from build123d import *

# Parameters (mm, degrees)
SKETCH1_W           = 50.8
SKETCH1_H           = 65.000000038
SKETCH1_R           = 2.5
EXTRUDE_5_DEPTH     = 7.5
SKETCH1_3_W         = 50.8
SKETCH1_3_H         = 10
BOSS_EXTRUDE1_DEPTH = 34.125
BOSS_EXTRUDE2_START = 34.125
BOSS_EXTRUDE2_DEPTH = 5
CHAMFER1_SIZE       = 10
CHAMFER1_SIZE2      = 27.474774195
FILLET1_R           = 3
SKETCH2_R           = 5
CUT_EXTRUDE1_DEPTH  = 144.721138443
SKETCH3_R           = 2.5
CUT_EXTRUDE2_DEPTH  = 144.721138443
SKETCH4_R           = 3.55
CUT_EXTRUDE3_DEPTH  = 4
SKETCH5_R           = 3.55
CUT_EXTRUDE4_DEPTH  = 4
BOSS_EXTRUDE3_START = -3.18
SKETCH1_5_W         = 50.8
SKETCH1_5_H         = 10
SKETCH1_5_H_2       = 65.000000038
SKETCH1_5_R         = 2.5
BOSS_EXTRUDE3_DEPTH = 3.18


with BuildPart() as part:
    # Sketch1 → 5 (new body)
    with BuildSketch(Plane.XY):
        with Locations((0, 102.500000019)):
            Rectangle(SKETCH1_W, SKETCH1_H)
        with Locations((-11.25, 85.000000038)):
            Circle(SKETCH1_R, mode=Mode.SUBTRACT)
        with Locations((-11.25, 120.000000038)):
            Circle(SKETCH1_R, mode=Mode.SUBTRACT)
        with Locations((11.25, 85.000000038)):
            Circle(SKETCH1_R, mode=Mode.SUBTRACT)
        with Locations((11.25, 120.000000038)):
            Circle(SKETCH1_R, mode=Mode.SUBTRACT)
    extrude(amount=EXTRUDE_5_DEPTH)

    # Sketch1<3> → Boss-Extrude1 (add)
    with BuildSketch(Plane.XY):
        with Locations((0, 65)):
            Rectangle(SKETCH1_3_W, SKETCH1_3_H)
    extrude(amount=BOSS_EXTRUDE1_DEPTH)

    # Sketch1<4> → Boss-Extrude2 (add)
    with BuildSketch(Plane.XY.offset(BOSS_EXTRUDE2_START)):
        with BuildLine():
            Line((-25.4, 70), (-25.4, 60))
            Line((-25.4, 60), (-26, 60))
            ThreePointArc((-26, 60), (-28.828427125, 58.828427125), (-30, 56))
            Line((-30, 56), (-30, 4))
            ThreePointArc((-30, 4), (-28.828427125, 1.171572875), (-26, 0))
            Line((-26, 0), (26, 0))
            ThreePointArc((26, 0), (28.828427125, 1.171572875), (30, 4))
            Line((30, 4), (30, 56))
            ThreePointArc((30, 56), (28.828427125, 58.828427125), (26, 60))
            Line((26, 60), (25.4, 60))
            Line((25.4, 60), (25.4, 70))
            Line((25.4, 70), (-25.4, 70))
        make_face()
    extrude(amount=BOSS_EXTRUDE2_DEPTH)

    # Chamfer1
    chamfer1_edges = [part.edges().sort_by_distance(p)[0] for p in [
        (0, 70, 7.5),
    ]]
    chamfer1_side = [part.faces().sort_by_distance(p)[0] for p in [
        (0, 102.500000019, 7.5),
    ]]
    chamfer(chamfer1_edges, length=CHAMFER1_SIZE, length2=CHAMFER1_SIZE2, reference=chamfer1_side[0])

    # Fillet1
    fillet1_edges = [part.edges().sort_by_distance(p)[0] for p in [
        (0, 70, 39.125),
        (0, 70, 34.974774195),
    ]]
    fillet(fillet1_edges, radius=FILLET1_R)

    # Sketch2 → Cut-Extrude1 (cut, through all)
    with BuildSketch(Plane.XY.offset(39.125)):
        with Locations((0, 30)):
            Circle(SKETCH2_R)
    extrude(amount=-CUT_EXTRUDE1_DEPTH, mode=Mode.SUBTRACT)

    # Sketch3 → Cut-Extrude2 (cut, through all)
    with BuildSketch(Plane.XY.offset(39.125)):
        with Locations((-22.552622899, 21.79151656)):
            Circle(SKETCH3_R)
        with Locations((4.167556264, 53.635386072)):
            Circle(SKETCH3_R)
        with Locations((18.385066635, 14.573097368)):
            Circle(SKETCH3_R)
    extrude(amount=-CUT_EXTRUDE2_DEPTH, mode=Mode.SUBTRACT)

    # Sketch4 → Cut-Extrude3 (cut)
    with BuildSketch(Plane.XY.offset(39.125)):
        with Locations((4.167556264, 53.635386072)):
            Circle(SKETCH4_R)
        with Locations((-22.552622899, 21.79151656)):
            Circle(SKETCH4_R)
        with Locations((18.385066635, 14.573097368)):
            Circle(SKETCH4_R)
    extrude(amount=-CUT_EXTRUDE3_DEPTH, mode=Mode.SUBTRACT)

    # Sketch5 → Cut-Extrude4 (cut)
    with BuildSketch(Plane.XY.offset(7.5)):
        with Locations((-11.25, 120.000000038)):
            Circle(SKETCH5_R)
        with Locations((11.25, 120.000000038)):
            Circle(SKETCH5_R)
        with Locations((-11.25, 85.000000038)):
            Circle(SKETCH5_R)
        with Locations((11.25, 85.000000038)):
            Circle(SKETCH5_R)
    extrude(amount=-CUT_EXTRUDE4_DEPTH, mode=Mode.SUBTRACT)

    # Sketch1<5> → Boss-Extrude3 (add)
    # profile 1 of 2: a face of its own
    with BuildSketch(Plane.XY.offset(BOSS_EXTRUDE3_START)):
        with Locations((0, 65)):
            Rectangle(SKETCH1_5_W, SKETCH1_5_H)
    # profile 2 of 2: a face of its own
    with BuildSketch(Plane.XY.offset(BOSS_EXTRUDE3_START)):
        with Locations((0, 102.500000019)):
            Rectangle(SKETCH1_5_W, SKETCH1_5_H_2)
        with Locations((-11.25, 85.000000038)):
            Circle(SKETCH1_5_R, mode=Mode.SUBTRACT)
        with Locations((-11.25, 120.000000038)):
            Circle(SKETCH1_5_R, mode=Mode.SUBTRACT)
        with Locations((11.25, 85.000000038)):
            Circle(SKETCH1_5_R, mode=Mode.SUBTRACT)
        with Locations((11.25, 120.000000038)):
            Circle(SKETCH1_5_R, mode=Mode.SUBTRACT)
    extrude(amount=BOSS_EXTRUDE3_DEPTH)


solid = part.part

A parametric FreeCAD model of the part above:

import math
import FreeCAD as App
import Part
import Sketcher
Q = App.Units.Quantity


def edges_at(feature, points):
    """Names of the edges that pass closest to the given points."""
    edges = feature.Shape.Edges
    near = lambda p: min(range(len(edges)), key=lambda i: edges[i].distToShape(Part.Vertex(*p))[0])
    return sorted({f"Edge{near(p) + 1}" for p in points})


def add_polygon(sketch, points):
    """Adds a closed chain of lines whose ends are joined by coincident constraints."""
    first, n = sketch.GeometryCount, len(points)
    for a, b in zip(points, points[1:] + points[:1]):
        sketch.addGeometry(Part.LineSegment(App.Vector(*a, 0), App.Vector(*b, 0)), False)
    for i in range(n):
        sketch.addConstraint(Sketcher.Constraint("Coincident", first + i, 2, first + (i + 1) % n, 1))

doc = App.newDocument("Part")
params = doc.addObject("Spreadsheet::Sheet", "Params")
for row, (alias, value) in enumerate([
    ("sketch1_diameter", "5 mm"),
    ("sketch1_height", "65 mm"),
    ("sketch1_width", "50.8 mm"),
    ("pad1_length", "7.5 mm"),
    ("sketch2_height", "10 mm"),
    ("sketch2_width", "50.8 mm"),
    ("pad2_length", "34.125 mm"),
    ("sketch3_radius", "4 mm"),
    ("sketch3_width", "52 mm"),
    ("sketch3_height", "10 mm"),
    ("sketch3_width2", "0.6 mm"),
    ("pad3_length", "5 mm"),
    ("chamfer_size", "10 mm"),
    ("chamfer_size2", "27.474774 mm"),
    ("fillet_radius", "3 mm"),
    ("sketch4_diameter", "10 mm"),
    ("sketch5_diameter", "5 mm"),
    ("sketch6_diameter", "7.1 mm"),
    ("pocket3_length", "4 mm"),
    ("sketch7_diameter", "7.1 mm"),
    ("pocket4_length", "4 mm"),
    ("sketch8_diameter", "5 mm"),
    ("sketch8_height", "75 mm"),
    ("sketch8_width", "50.8 mm"),
    ("pad4_length", "3.18 mm"),
], start=1):
    params.set(f"A{row}", alias)
    params.set(f"B{row}", "=" + value)
    params.setAlias(f"B{row}", alias)

body = doc.addObject("PartDesign::Body", "Body")

# Sketch on XY plane
sketch1 = body.newObject("Sketcher::SketchObject", "Sketch")
sketch1.AttachmentSupport = (doc.getObject("XY_Plane"), [""])
sketch1.MapMode = "FlatFace"
add_polygon(sketch1, [(-25.4, 135), (-25.4, 70), (25.4, 70), (25.4, 135)])  # lines 0-3
sketch1.addGeometry(Part.Circle(App.Vector(-11.25, 85, 0), App.Vector(0, 0, 1), 2.5), False)  # 4
sketch1.addGeometry(Part.Circle(App.Vector(11.25, 85, 0), App.Vector(0, 0, 1), 2.5), False)  # 5
sketch1.addGeometry(Part.Circle(App.Vector(-11.25, 120, 0), App.Vector(0, 0, 1), 2.5), False)  # 6
sketch1.addGeometry(Part.Circle(App.Vector(11.25, 120, 0), App.Vector(0, 0, 1), 2.5), False)  # 7
sketch1.addConstraint(Sketcher.Constraint("Vertical", 0))
sketch1.addConstraint(Sketcher.Constraint("Horizontal", 1))
sketch1.addConstraint(Sketcher.Constraint("Vertical", 2))
sketch1.addConstraint(Sketcher.Constraint("Horizontal", 3))
sketch1.addConstraint(Sketcher.Constraint("Equal", 4, 5))
sketch1.addConstraint(Sketcher.Constraint("Equal", 5, 6))
sketch1.addConstraint(Sketcher.Constraint("Equal", 6, 7))
sketch1.addConstraint(Sketcher.Constraint("Symmetric", 4, 3, 5, 3, -2))
sketch1.addConstraint(Sketcher.Constraint("Symmetric", 6, 3, 7, 3, -2))
sketch1.addConstraint(Sketcher.Constraint("Vertical", 4, 3, 6, 3))
sketch1.addConstraint(Sketcher.Constraint("Diameter", 4, Q("5 mm")))
sketch1.addConstraint(Sketcher.Constraint("DistanceY", 0, 2, 0, 1, Q("65 mm")))
sketch1.addConstraint(Sketcher.Constraint("DistanceX", 1, 1, 1, 2, Q("50.8 mm")))
sketch1.addConstraint(Sketcher.Constraint("DistanceY", -1, 1, 4, 3, Q("85 mm")))
sketch1.addConstraint(Sketcher.Constraint("DistanceY", -1, 1, 6, 3, Q("120 mm")))
sketch1.addConstraint(Sketcher.Constraint("DistanceY", -1, 1, 0, 2, Q("70 mm")))
sketch1.addConstraint(Sketcher.Constraint("DistanceX", 0, 2, -1, 1, Q("25.4 mm")))
sketch1.addConstraint(Sketcher.Constraint("DistanceX", 4, 3, 5, 3, Q("22.5 mm")))
sketch1.setExpression("Constraints[14]", "Params.sketch1_diameter")
sketch1.setExpression("Constraints[15]", "Params.sketch1_height")
sketch1.setExpression("Constraints[16]", "Params.sketch1_width")
pad1 = body.newObject("PartDesign::Pad", "Pad")
pad1.Profile = sketch1
pad1.setExpression("Length", "Params.pad1_length")

# Sketch on XY plane
sketch2 = body.newObject("Sketcher::SketchObject", "Sketch001")
sketch2.AttachmentSupport = (doc.getObject("XY_Plane"), [""])
sketch2.MapMode = "FlatFace"
add_polygon(sketch2, [(-25.4, 70), (-25.4, 60), (25.4, 60), (25.4, 70)])  # lines 0-3
sketch2.addConstraint(Sketcher.Constraint("Vertical", 0))
sketch2.addConstraint(Sketcher.Constraint("Horizontal", 1))
sketch2.addConstraint(Sketcher.Constraint("Vertical", 2))
sketch2.addConstraint(Sketcher.Constraint("Horizontal", 3))
sketch2.addConstraint(Sketcher.Constraint("DistanceY", 0, 2, 0, 1, Q("10 mm")))
sketch2.addConstraint(Sketcher.Constraint("DistanceX", 1, 1, 1, 2, Q("50.8 mm")))
sketch2.addConstraint(Sketcher.Constraint("DistanceY", -1, 1, 0, 2, Q("60 mm")))
sketch2.addConstraint(Sketcher.Constraint("DistanceX", 0, 2, -1, 1, Q("25.4 mm")))
sketch2.setExpression("Constraints[8]", "Params.sketch2_height")
sketch2.setExpression("Constraints[9]", "Params.sketch2_width")
pad2 = body.newObject("PartDesign::Pad", "Pad001")
pad2.Profile = sketch2
pad2.setExpression("Length", "Params.pad2_length")

# Sketch on XY plane
sketch3 = body.newObject("Sketcher::SketchObject", "Sketch002")
sketch3.AttachmentSupport = (doc.getObject("XY_Plane"), [""])
sketch3.MapMode = "FlatFace"
sketch3.AttachmentOffset = App.Placement(App.Vector(0, 0, 34.125), App.Rotation())
sketch3.addGeometry(Part.LineSegment(App.Vector(-25.4, 70, 0), App.Vector(-25.4, 60, 0)), False)
sketch3.addGeometry(Part.LineSegment(App.Vector(-25.4, 60, 0), App.Vector(-26, 60, 0)), False)
sketch3.addGeometry(Part.ArcOfCircle(Part.Circle(App.Vector(-26, 56, 0), App.Vector(0, 0, 1), 4), math.radians(90), math.radians(180)), False)
sketch3.addGeometry(Part.LineSegment(App.Vector(-30, 56, 0), App.Vector(-30, 4, 0)), False)
sketch3.addGeometry(Part.ArcOfCircle(Part.Circle(App.Vector(-26, 4, 0), App.Vector(0, 0, 1), 4), math.radians(180), math.radians(270)), False)
sketch3.addGeometry(Part.LineSegment(App.Vector(-26, 0, 0), App.Vector(26, 0, 0)), False)
sketch3.addGeometry(Part.ArcOfCircle(Part.Circle(App.Vector(26, 4, 0), App.Vector(0, 0, 1), 4), math.radians(-90), math.radians(0)), False)
sketch3.addGeometry(Part.LineSegment(App.Vector(30, 4, 0), App.Vector(30, 56, 0)), False)
sketch3.addGeometry(Part.ArcOfCircle(Part.Circle(App.Vector(26, 56, 0), App.Vector(0, 0, 1), 4), math.radians(0), math.radians(90)), False)
sketch3.addGeometry(Part.LineSegment(App.Vector(26, 60, 0), App.Vector(25.4, 60, 0)), False)
sketch3.addGeometry(Part.LineSegment(App.Vector(25.4, 60, 0), App.Vector(25.4, 70, 0)), False)
sketch3.addGeometry(Part.LineSegment(App.Vector(25.4, 70, 0), App.Vector(-25.4, 70, 0)), False)
sketch3.addConstraint(Sketcher.Constraint("Coincident", 0, 2, 1, 1))
sketch3.addConstraint(Sketcher.Constraint("Tangent", 1, 2, 2, 1))
sketch3.addConstraint(Sketcher.Constraint("Tangent", 2, 2, 3, 1))
sketch3.addConstraint(Sketcher.Constraint("Tangent", 3, 2, 4, 1))
sketch3.addConstraint(Sketcher.Constraint("Tangent", 4, 2, 5, 1))
sketch3.addConstraint(Sketcher.Constraint("Tangent", 5, 2, 6, 1))
sketch3.addConstraint(Sketcher.Constraint("Tangent", 6, 2, 7, 1))
sketch3.addConstraint(Sketcher.Constraint("Tangent", 7, 2, 8, 1))
sketch3.addConstraint(Sketcher.Constraint("Tangent", 8, 2, 9, 1))
sketch3.addConstraint(Sketcher.Constraint("Coincident", 9, 2, 10, 1))
sketch3.addConstraint(Sketcher.Constraint("Coincident", 10, 2, 11, 1))
sketch3.addConstraint(Sketcher.Constraint("Coincident", 11, 2, 0, 1))
sketch3.addConstraint(Sketcher.Constraint("Vertical", 0))
sketch3.addConstraint(Sketcher.Constraint("Horizontal", 1))
sketch3.addConstraint(Sketcher.Constraint("Vertical", 3))
sketch3.addConstraint(Sketcher.Constraint("Horizontal", 5))
sketch3.addConstraint(Sketcher.Constraint("Vertical", 7))
sketch3.addConstraint(Sketcher.Constraint("Horizontal", 9))
sketch3.addConstraint(Sketcher.Constraint("Vertical", 10))
sketch3.addConstraint(Sketcher.Constraint("Horizontal", 11))
sketch3.addConstraint(Sketcher.Constraint("Equal", 2, 4))
sketch3.addConstraint(Sketcher.Constraint("Equal", 4, 6))
sketch3.addConstraint(Sketcher.Constraint("Equal", 6, 8))
sketch3.addConstraint(Sketcher.Constraint("Symmetric", 4, 2, 5, 2, -1, 1))
sketch3.addConstraint(Sketcher.Constraint("Symmetric", 0, 2, 9, 2, -2))
sketch3.addConstraint(Sketcher.Constraint("Equal", 5, 3))
sketch3.addConstraint(Sketcher.Constraint("Radius", 2, Q("4 mm")))
sketch3.addConstraint(Sketcher.Constraint("DistanceX", 5, 1, 5, 2, Q("52 mm")))
sketch3.addConstraint(Sketcher.Constraint("DistanceY", 0, 2, 0, 1, Q("10 mm")))
sketch3.addConstraint(Sketcher.Constraint("DistanceX", 1, 2, 1, 1, Q("0.6 mm")))
sketch3.setExpression("Constraints[26]", "Params.sketch3_radius")
sketch3.setExpression("Constraints[27]", "Params.sketch3_width")
sketch3.setExpression("Constraints[28]", "Params.sketch3_height")
sketch3.setExpression("Constraints[29]", "Params.sketch3_width2")
pad3 = body.newObject("PartDesign::Pad", "Pad002")
pad3.Profile = sketch3
pad3.setExpression("Length", "Params.pad3_length")
doc.recompute()

chamfer = body.newObject("PartDesign::Chamfer", "Chamfer")
chamfer.Base = (pad3, edges_at(pad3, [(0, 70, 7.5)]))
chamfer.ChamferType = "Two distances"
chamfer.setExpression("Size", "Params.chamfer_size")
chamfer.setExpression("Size2", "Params.chamfer_size2")
doc.recompute()

fillet = body.newObject("PartDesign::Fillet", "Fillet")
fillet.Base = (chamfer, edges_at(chamfer, [(0, 70, 39.125), (0, 70, 34.975)]))
fillet.setExpression("Radius", "Params.fillet_radius")

# Sketch on XY plane
sketch4 = body.newObject("Sketcher::SketchObject", "Sketch003")
sketch4.AttachmentSupport = (doc.getObject("XY_Plane"), [""])
sketch4.MapMode = "FlatFace"
sketch4.AttachmentOffset = App.Placement(App.Vector(0, 0, 39.125), App.Rotation())
sketch4.addGeometry(Part.Circle(App.Vector(0, 30, 0), App.Vector(0, 0, 1), 5), False)
sketch4.addConstraint(Sketcher.Constraint("PointOnObject", 0, 3, -2))
sketch4.addConstraint(Sketcher.Constraint("Diameter", 0, Q("10 mm")))
sketch4.addConstraint(Sketcher.Constraint("DistanceY", -1, 1, 0, 3, Q("30 mm")))
sketch4.setExpression("Constraints[1]", "Params.sketch4_diameter")
pocket1 = body.newObject("PartDesign::Pocket", "Pocket")
pocket1.Profile = sketch4
pocket1.Type = "ThroughAll"

# Sketch on XY plane
sketch5 = body.newObject("Sketcher::SketchObject", "Sketch004")
sketch5.AttachmentSupport = (doc.getObject("XY_Plane"), [""])
sketch5.MapMode = "FlatFace"
sketch5.AttachmentOffset = App.Placement(App.Vector(0, 0, 39.125), App.Rotation())
sketch5.addGeometry(Part.Circle(App.Vector(-22.552623, 21.791517, 0), App.Vector(0, 0, 1), 2.5), False)
sketch5.addGeometry(Part.Circle(App.Vector(4.167556, 53.635386, 0), App.Vector(0, 0, 1), 2.5), False)
sketch5.addGeometry(Part.Circle(App.Vector(18.385067, 14.573097, 0), App.Vector(0, 0, 1), 2.5), False)
sketch5.addConstraint(Sketcher.Constraint("Equal", 0, 1))
sketch5.addConstraint(Sketcher.Constraint("Equal", 1, 2))
sketch5.addConstraint(Sketcher.Constraint("Diameter", 0, Q("5 mm")))
sketch5.addConstraint(Sketcher.Constraint("DistanceX", 0, 3, 1, 3, Q("26.720179 mm")))
sketch5.addConstraint(Sketcher.Constraint("DistanceY", 0, 3, 1, 3, Q("31.84387 mm")))
sketch5.addConstraint(Sketcher.Constraint("DistanceX", 1, 3, 2, 3, Q("14.21751 mm")))
sketch5.addConstraint(Sketcher.Constraint("DistanceY", 2, 3, 1, 3, Q("39.062289 mm")))
sketch5.addConstraint(Sketcher.Constraint("DistanceX", 0, 3, -1, 1, Q("22.552623 mm")))
sketch5.addConstraint(Sketcher.Constraint("DistanceY", -1, 1, 0, 3, Q("21.791517 mm")))
sketch5.setExpression("Constraints[2]", "Params.sketch5_diameter")
pocket2 = body.newObject("PartDesign::Pocket", "Pocket001")
pocket2.Profile = sketch5
pocket2.Type = "ThroughAll"

# Sketch on XY plane
sketch6 = body.newObject("Sketcher::SketchObject", "Sketch005")
sketch6.AttachmentSupport = (doc.getObject("XY_Plane"), [""])
sketch6.MapMode = "FlatFace"
sketch6.AttachmentOffset = App.Placement(App.Vector(0, 0, 39.125), App.Rotation())
sketch6.addGeometry(Part.Circle(App.Vector(4.167556, 53.635386, 0), App.Vector(0, 0, 1), 3.55), False)
sketch6.addGeometry(Part.Circle(App.Vector(-22.552623, 21.791517, 0), App.Vector(0, 0, 1), 3.55), False)
sketch6.addGeometry(Part.Circle(App.Vector(18.385067, 14.573097, 0), App.Vector(0, 0, 1), 3.55), False)
sketch6.addConstraint(Sketcher.Constraint("Equal", 0, 1))
sketch6.addConstraint(Sketcher.Constraint("Equal", 1, 2))
sketch6.addConstraint(Sketcher.Constraint("Diameter", 0, Q("7.1 mm")))
sketch6.addConstraint(Sketcher.Constraint("DistanceX", 1, 3, 0, 3, Q("26.720179 mm")))
sketch6.addConstraint(Sketcher.Constraint("DistanceY", 1, 3, 0, 3, Q("31.84387 mm")))
sketch6.addConstraint(Sketcher.Constraint("DistanceX", 0, 3, 2, 3, Q("14.21751 mm")))
sketch6.addConstraint(Sketcher.Constraint("DistanceY", 2, 3, 0, 3, Q("39.062289 mm")))
sketch6.addConstraint(Sketcher.Constraint("DistanceX", -1, 1, 0, 3, Q("4.167556 mm")))
sketch6.addConstraint(Sketcher.Constraint("DistanceY", -1, 1, 0, 3, Q("53.635386 mm")))
sketch6.setExpression("Constraints[2]", "Params.sketch6_diameter")
pocket3 = body.newObject("PartDesign::Pocket", "Pocket002")
pocket3.Profile = sketch6
pocket3.setExpression("Length", "Params.pocket3_length")

# Sketch on XY plane
sketch7 = body.newObject("Sketcher::SketchObject", "Sketch006")
sketch7.AttachmentSupport = (doc.getObject("XY_Plane"), [""])
sketch7.MapMode = "FlatFace"
sketch7.AttachmentOffset = App.Placement(App.Vector(0, 0, 7.5), App.Rotation())
sketch7.addGeometry(Part.Circle(App.Vector(-11.25, 120, 0), App.Vector(0, 0, 1), 3.55), False)
sketch7.addGeometry(Part.Circle(App.Vector(11.25, 120, 0), App.Vector(0, 0, 1), 3.55), False)
sketch7.addGeometry(Part.Circle(App.Vector(-11.25, 85, 0), App.Vector(0, 0, 1), 3.55), False)
sketch7.addGeometry(Part.Circle(App.Vector(11.25, 85, 0), App.Vector(0, 0, 1), 3.55), False)
sketch7.addConstraint(Sketcher.Constraint("Equal", 0, 1))
sketch7.addConstraint(Sketcher.Constraint("Equal", 1, 2))
sketch7.addConstraint(Sketcher.Constraint("Equal", 2, 3))
sketch7.addConstraint(Sketcher.Constraint("Symmetric", 0, 3, 1, 3, -2))
sketch7.addConstraint(Sketcher.Constraint("Symmetric", 2, 3, 3, 3, -2))
sketch7.addConstraint(Sketcher.Constraint("Vertical", 0, 3, 2, 3))
sketch7.addConstraint(Sketcher.Constraint("Diameter", 0, Q("7.1 mm")))
sketch7.addConstraint(Sketcher.Constraint("DistanceY", -1, 1, 0, 3, Q("120 mm")))
sketch7.addConstraint(Sketcher.Constraint("DistanceY", -1, 1, 2, 3, Q("85 mm")))
sketch7.addConstraint(Sketcher.Constraint("DistanceX", 0, 3, 1, 3, Q("22.5 mm")))
sketch7.setExpression("Constraints[6]", "Params.sketch7_diameter")
pocket4 = body.newObject("PartDesign::Pocket", "Pocket003")
pocket4.Profile = sketch7
pocket4.setExpression("Length", "Params.pocket4_length")

# Sketch on XY plane
sketch8 = body.newObject("Sketcher::SketchObject", "Sketch007")
sketch8.AttachmentSupport = (doc.getObject("XY_Plane"), [""])
sketch8.MapMode = "FlatFace"
sketch8.AttachmentOffset = App.Placement(App.Vector(0, 0, -3.18), App.Rotation())
add_polygon(sketch8, [(-25.4, 60), (25.4, 60), (25.4, 135), (-25.4, 135)])  # lines 0-3
sketch8.addGeometry(Part.Circle(App.Vector(11.25, 120, 0), App.Vector(0, 0, 1), 2.5), False)  # 4
sketch8.addGeometry(Part.Circle(App.Vector(-11.25, 85, 0), App.Vector(0, 0, 1), 2.5), False)  # 5
sketch8.addGeometry(Part.Circle(App.Vector(11.25, 85, 0), App.Vector(0, 0, 1), 2.5), False)  # 6
sketch8.addGeometry(Part.Circle(App.Vector(-11.25, 120, 0), App.Vector(0, 0, 1), 2.5), False)  # 7
sketch8.addConstraint(Sketcher.Constraint("Horizontal", 0))
sketch8.addConstraint(Sketcher.Constraint("Vertical", 1))
sketch8.addConstraint(Sketcher.Constraint("Horizontal", 2))
sketch8.addConstraint(Sketcher.Constraint("Vertical", 3))
sketch8.addConstraint(Sketcher.Constraint("Equal", 4, 5))
sketch8.addConstraint(Sketcher.Constraint("Equal", 5, 6))
sketch8.addConstraint(Sketcher.Constraint("Equal", 6, 7))
sketch8.addConstraint(Sketcher.Constraint("Symmetric", 5, 3, 6, 3, -2))
sketch8.addConstraint(Sketcher.Constraint("Symmetric", 4, 3, 7, 3, -2))
sketch8.addConstraint(Sketcher.Constraint("Vertical", 4, 3, 6, 3))
sketch8.addConstraint(Sketcher.Constraint("Diameter", 4, Q("5 mm")))
sketch8.addConstraint(Sketcher.Constraint("DistanceY", 1, 1, 1, 2, Q("75 mm")))
sketch8.addConstraint(Sketcher.Constraint("DistanceX", 0, 1, 0, 2, Q("50.8 mm")))
sketch8.addConstraint(Sketcher.Constraint("DistanceY", -1, 1, 4, 3, Q("120 mm")))
sketch8.addConstraint(Sketcher.Constraint("DistanceY", -1, 1, 5, 3, Q("85 mm")))
sketch8.addConstraint(Sketcher.Constraint("DistanceY", -1, 1, 0, 2, Q("60 mm")))
sketch8.addConstraint(Sketcher.Constraint("DistanceX", -1, 1, 0, 2, Q("25.4 mm")))
sketch8.addConstraint(Sketcher.Constraint("DistanceX", 5, 3, 4, 3, Q("22.5 mm")))
sketch8.setExpression("Constraints[14]", "Params.sketch8_diameter")
sketch8.setExpression("Constraints[15]", "Params.sketch8_height")
sketch8.setExpression("Constraints[16]", "Params.sketch8_width")
pad4 = body.newObject("PartDesign::Pad", "Pad003")
pad4.Profile = sketch8
pad4.setExpression("Length", "Params.pad4_length")

doc.recompute()
